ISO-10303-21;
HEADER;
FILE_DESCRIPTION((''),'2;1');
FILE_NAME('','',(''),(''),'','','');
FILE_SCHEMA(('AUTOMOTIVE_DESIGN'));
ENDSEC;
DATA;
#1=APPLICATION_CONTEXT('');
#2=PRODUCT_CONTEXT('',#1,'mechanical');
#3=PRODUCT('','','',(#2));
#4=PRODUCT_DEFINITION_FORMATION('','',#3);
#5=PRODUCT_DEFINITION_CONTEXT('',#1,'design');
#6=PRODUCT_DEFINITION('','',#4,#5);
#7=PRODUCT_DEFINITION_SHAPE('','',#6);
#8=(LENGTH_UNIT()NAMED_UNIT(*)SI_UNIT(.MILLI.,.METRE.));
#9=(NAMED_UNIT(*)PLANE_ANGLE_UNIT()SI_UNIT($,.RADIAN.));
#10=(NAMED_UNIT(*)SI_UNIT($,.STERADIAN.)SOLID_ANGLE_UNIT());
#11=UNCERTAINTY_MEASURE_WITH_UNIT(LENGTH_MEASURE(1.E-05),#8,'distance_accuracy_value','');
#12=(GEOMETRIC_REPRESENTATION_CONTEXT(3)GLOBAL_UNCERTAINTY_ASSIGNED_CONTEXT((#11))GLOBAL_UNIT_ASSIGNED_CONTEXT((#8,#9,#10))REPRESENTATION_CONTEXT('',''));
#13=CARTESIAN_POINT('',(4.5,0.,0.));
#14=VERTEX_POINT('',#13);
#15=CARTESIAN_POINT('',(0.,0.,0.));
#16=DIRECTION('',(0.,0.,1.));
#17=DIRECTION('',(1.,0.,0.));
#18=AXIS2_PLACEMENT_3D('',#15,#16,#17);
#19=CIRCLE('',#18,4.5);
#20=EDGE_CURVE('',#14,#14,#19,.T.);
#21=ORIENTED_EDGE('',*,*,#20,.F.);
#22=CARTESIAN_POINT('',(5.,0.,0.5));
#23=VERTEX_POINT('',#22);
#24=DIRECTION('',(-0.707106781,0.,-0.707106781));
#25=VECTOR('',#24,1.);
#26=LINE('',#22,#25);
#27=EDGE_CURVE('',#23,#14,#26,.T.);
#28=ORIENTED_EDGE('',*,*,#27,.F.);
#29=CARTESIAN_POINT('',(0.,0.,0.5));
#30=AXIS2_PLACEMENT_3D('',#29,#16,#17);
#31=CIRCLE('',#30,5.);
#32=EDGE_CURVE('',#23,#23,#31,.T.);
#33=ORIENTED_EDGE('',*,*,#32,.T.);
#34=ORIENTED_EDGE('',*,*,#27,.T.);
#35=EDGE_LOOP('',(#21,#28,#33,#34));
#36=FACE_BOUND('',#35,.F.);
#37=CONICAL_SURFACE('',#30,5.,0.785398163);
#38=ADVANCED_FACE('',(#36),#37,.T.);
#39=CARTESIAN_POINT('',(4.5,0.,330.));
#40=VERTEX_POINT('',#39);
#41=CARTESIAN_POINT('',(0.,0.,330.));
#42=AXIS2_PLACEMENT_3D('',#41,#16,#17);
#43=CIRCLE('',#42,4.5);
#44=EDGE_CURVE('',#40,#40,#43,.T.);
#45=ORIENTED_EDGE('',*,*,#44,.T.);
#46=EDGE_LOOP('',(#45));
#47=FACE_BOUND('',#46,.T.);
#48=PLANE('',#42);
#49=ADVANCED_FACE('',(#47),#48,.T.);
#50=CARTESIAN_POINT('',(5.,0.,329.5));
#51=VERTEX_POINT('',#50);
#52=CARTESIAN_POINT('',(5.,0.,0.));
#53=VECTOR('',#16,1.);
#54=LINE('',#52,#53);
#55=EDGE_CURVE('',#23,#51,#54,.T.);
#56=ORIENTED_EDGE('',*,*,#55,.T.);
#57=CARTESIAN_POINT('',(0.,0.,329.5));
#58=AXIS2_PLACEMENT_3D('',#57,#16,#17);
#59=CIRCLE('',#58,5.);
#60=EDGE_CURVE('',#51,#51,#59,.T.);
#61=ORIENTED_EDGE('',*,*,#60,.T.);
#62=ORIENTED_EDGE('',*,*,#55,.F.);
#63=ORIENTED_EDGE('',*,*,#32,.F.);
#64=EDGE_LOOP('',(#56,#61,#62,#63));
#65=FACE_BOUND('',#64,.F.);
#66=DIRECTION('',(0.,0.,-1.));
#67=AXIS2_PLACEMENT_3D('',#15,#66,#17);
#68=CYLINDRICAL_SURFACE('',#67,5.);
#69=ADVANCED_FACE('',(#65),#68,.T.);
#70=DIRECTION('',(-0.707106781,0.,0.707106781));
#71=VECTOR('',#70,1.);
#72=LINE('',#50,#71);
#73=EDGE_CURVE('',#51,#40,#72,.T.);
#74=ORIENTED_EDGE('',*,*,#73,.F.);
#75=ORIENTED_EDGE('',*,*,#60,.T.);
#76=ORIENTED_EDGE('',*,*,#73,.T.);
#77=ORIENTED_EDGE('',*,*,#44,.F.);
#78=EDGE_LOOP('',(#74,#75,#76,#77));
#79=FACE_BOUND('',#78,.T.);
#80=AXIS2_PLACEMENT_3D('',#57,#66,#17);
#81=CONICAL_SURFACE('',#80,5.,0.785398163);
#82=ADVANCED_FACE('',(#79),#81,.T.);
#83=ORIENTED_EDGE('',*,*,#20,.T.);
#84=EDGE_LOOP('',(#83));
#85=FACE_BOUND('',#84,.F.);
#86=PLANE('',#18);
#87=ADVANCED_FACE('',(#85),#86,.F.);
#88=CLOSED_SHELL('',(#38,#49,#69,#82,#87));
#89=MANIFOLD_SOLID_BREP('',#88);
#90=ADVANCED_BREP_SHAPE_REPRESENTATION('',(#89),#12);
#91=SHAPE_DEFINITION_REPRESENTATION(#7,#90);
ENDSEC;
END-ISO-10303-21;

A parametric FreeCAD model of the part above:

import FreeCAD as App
import Part
import Sketcher

V = App.Vector


def edges_at(feature, points):
    """Names of the edges that pass closest to the given points."""
    edges = feature.Shape.Edges
    near = lambda p: min(range(len(edges)), key=lambda i: edges[i].distToShape(Part.Vertex(*p))[0])
    return sorted({f"Edge{near(p) + 1}" for p in points})

doc = App.newDocument("Part")
body = doc.addObject("PartDesign::Body", "Body")

# Sketch on XY plane
sketch1 = doc.addObject("Sketcher::SketchObject", "Sketch")
body.addObject(sketch1)
sketch1.AttachmentSupport = (doc.XY_Plane, [""])
sketch1.MapMode = "FlatFace"
sketch1.addGeometry(Part.Circle(V(0, 0, 0), V(0, 0, 1), 5), False)
sketch1.addConstraint([
    Sketcher.Constraint("Coincident", 0, 3, -1, 1),
    Sketcher.Constraint("Diameter", 0, 10.0),
])
pad1 = doc.addObject("PartDesign::Pad", "Pad")
body.addObject(pad1)
pad1.Profile = sketch1
pad1.Length = 330
doc.recompute()

chamfer = doc.addObject("PartDesign::Chamfer", "Chamfer")
body.addObject(chamfer)
chamfer.Base = (pad1, edges_at(pad1, [(-5, 0, 330), (-5, 0, 0)]))
chamfer.Size = 0.5

doc.recompute()
